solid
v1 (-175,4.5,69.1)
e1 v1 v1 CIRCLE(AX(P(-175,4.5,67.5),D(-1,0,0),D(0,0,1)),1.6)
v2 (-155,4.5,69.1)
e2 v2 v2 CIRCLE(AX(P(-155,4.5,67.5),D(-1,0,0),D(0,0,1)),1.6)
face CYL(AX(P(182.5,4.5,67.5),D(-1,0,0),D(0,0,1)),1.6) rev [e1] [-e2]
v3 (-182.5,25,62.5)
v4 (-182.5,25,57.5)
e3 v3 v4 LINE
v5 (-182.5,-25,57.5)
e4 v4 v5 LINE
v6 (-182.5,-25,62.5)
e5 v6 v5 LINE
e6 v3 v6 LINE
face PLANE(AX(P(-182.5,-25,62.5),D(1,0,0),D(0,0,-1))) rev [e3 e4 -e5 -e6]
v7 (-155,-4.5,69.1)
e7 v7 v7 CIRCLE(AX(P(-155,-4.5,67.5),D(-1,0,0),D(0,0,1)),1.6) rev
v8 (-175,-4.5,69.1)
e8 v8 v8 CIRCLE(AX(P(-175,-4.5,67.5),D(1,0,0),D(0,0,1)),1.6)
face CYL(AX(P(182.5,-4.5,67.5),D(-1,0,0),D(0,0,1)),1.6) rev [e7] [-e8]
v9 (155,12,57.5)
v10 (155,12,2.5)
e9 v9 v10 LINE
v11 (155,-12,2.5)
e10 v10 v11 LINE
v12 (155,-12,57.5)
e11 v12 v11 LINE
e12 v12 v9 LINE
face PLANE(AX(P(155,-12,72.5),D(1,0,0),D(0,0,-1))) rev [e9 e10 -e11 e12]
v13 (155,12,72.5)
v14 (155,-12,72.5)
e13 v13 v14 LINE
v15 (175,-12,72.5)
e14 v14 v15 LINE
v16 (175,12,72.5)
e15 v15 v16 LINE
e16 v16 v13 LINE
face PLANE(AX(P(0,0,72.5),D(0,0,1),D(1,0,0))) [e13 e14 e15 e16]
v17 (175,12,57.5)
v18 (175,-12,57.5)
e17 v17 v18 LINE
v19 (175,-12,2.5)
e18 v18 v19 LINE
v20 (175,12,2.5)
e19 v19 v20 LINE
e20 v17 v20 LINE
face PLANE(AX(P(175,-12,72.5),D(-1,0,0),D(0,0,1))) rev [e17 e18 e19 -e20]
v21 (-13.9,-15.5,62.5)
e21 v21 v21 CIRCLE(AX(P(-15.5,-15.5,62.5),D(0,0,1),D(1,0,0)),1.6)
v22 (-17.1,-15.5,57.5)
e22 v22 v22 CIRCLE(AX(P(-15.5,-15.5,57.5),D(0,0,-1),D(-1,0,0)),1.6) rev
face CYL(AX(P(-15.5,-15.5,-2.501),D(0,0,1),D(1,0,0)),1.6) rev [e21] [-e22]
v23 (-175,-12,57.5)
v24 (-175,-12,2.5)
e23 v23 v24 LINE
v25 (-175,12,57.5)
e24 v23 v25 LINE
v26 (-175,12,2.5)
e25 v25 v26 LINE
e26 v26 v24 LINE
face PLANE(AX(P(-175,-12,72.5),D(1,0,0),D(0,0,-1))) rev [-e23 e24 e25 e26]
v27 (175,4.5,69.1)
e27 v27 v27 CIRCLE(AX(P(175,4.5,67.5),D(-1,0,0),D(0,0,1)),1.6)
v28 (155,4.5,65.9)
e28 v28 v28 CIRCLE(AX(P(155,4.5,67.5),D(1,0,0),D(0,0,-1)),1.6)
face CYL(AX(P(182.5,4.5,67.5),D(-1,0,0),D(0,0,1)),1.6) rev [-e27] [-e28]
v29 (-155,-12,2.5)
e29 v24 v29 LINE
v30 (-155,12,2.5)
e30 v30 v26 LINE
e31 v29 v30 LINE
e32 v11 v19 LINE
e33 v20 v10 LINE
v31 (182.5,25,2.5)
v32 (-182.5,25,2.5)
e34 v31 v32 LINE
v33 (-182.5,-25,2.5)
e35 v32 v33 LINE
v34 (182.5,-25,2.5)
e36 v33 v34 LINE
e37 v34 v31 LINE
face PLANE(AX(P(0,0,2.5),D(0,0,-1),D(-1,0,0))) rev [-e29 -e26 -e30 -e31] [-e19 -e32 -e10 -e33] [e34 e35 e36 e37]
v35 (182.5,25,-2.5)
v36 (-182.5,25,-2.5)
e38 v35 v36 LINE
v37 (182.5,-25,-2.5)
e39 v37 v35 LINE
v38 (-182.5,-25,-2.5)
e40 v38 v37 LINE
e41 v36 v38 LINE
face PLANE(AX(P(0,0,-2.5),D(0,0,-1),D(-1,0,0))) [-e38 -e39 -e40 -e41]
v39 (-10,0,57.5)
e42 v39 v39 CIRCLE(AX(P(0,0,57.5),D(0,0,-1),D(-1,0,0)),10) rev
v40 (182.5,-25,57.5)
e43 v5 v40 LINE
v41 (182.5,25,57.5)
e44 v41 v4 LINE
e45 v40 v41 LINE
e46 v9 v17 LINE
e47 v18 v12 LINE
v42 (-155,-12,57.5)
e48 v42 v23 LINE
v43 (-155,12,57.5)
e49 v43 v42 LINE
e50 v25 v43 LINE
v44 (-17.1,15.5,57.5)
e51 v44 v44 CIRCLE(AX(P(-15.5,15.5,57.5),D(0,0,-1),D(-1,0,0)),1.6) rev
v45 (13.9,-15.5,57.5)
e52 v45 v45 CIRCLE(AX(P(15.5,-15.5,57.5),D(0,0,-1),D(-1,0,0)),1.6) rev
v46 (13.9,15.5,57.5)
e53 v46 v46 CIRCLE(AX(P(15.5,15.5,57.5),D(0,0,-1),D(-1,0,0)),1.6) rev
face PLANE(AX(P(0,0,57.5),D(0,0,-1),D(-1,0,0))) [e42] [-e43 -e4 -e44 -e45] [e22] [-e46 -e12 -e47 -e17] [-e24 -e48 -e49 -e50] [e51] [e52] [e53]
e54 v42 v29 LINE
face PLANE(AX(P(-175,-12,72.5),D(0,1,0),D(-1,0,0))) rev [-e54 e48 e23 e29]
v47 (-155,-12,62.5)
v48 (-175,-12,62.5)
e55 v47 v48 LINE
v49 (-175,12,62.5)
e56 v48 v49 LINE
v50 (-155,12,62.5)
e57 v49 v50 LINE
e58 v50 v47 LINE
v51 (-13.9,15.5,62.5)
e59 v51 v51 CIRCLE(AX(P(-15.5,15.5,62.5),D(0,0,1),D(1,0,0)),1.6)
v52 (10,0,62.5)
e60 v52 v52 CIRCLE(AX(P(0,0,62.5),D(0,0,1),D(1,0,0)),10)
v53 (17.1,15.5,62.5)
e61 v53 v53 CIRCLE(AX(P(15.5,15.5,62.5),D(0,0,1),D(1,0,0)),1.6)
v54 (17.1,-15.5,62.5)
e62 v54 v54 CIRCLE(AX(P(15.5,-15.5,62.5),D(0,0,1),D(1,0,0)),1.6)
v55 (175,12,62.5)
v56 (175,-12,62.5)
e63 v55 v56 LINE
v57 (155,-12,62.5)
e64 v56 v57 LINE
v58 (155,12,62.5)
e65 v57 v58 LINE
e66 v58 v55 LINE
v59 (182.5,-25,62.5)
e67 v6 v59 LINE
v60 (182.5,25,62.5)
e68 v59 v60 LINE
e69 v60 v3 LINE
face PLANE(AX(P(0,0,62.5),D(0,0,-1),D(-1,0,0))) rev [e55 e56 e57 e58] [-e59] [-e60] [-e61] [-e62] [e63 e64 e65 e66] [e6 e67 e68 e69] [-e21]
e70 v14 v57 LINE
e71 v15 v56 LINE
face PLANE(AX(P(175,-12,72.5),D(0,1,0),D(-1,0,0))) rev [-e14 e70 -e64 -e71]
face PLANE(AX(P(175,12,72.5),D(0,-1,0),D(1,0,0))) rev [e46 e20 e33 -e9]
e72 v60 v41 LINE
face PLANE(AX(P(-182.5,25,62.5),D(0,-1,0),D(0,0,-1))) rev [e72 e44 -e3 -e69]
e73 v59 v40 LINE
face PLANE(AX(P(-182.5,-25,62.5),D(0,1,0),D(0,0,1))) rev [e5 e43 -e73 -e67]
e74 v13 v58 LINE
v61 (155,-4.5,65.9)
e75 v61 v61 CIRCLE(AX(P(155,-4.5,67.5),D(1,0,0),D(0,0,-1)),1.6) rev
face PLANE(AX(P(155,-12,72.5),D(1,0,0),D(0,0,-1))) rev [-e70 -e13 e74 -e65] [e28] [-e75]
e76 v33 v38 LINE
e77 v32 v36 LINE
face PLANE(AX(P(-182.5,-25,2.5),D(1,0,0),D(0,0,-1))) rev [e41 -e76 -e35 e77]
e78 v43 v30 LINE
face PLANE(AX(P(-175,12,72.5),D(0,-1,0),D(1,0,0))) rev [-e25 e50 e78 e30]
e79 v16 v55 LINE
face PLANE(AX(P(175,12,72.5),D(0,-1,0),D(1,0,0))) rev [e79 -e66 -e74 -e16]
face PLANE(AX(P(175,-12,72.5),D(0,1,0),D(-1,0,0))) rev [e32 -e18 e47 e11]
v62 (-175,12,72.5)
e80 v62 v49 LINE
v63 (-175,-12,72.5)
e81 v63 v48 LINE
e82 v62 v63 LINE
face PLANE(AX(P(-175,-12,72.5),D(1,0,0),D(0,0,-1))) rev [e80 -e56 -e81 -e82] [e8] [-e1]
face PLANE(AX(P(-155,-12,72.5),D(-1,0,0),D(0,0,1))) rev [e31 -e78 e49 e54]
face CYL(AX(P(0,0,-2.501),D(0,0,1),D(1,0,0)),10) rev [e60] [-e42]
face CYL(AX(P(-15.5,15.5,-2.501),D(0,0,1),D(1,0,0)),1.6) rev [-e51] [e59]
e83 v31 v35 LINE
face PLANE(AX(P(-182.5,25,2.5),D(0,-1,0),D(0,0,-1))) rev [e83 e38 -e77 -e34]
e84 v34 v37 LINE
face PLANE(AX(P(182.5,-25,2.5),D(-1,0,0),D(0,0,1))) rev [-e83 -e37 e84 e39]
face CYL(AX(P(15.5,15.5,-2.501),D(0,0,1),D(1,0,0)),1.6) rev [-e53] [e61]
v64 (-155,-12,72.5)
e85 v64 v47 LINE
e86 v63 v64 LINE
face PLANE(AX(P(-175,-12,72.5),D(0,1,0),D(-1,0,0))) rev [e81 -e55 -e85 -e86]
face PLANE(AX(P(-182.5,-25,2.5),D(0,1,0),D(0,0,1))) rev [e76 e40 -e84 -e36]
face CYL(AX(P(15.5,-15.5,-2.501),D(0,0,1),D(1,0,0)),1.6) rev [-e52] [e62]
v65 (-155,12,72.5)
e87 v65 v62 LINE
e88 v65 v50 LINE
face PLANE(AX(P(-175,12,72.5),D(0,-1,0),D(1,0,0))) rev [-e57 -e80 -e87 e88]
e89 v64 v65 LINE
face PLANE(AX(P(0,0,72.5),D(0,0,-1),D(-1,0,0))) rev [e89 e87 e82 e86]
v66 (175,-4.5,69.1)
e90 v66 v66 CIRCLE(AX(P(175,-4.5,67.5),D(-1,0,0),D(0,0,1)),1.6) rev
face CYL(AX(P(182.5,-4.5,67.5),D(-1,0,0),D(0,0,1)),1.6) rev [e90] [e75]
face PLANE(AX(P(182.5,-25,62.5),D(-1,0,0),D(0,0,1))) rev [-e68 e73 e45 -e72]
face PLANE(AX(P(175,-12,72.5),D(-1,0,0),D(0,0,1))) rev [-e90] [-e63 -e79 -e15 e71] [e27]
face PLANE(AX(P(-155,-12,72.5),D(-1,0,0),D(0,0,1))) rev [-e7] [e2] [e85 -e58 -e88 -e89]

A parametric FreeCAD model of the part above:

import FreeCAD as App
import Part
import Sketcher
from FreeCAD import Vector

doc = App.newDocument("Part")
body = doc.addObject("PartDesign::Body", "Body")

sketch1 = body.newObject("Sketcher::SketchObject", "Sketch")
sketch1.AttachmentSupport = (doc.getObject("XY_Plane"), [""])
sketch1.MapMode = "FlatFace"
sketch1.addGeometry([
    Part.LineSegment(Vector(-182.5, 25, 0), Vector(-182.5, -25, 0)),
    Part.LineSegment(Vector(-182.5, -25, 0), Vector(182.5, -25, 0)),
    Part.LineSegment(Vector(182.5, -25, 0), Vector(182.5, 25, 0)),
    Part.LineSegment(Vector(182.5, 25, 0), Vector(-182.5, 25, 0)),
], False)
sketch1.addConstraint([
    Sketcher.Constraint("Coincident", 0, 2, 1, 1),
    Sketcher.Constraint("Coincident", 1, 2, 2, 1),
    Sketcher.Constraint("Coincident", 2, 2, 3, 1),
    Sketcher.Constraint("Coincident", 3, 2, 0, 1),
    Sketcher.Constraint("Vertical", 0),
    Sketcher.Constraint("Horizontal", 1),
    Sketcher.Constraint("Vertical", 2),
    Sketcher.Constraint("Horizontal", 3),
    Sketcher.Constraint("Symmetric", 0, 2, 2, 2, -1, 1),
    Sketcher.Constraint("DistanceX", 1, 1, 1, 2, 365.0),
    Sketcher.Constraint("DistanceY", 0, 2, 0, 1, 50.0),
])
pad1 = body.newObject("PartDesign::Pad", "Pad")
pad1.Profile = sketch1
pad1.Length = 5
pad1.Midplane = True

sketch2 = body.newObject("Sketcher::SketchObject", "Sketch001")
sketch2.AttachmentSupport = (doc.getObject("XY_Plane"), [""])
sketch2.MapMode = "FlatFace"
sketch2.AttachmentOffset = App.Placement(Vector(0, 0, 2.5), App.Rotation())
sketch2.addGeometry([
    Part.LineSegment(Vector(155, 12, 0), Vector(155, -12, 0)),
    Part.LineSegment(Vector(155, -12, 0), Vector(175, -12, 0)),
    Part.LineSegment(Vector(175, -12, 0), Vector(175, 12, 0)),
    Part.LineSegment(Vector(175, 12, 0), Vector(155, 12, 0)),
    Part.LineSegment(Vector(-175, 12, 0), Vector(-175, -12, 0)),
    Part.LineSegment(Vector(-175, -12, 0), Vector(-155, -12, 0)),
    Part.LineSegment(Vector(-155, -12, 0), Vector(-155, 12, 0)),
    Part.LineSegment(Vector(-155, 12, 0), Vector(-175, 12, 0)),
], False)
sketch2.addConstraint([
    Sketcher.Constraint("Coincident", 0, 2, 1, 1),
    Sketcher.Constraint("Coincident", 1, 2, 2, 1),
    Sketcher.Constraint("Coincident", 2, 2, 3, 1),
    Sketcher.Constraint("Coincident", 3, 2, 0, 1),
    Sketcher.Constraint("Coincident", 4, 2, 5, 1),
    Sketcher.Constraint("Coincident", 5, 2, 6, 1),
    Sketcher.Constraint("Coincident", 6, 2, 7, 1),
    Sketcher.Constraint("Coincident", 7, 2, 4, 1),
    Sketcher.Constraint("Vertical", 0),
    Sketcher.Constraint("Horizontal", 1),
    Sketcher.Constraint("Vertical", 2),
    Sketcher.Constraint("Horizontal", 3),
    Sketcher.Constraint("Vertical", 4),
    Sketcher.Constraint("Horizontal", 5),
    Sketcher.Constraint("Vertical", 6),
    Sketcher.Constraint("Horizontal", 7),
    Sketcher.Constraint("Symmetric", 2, 2, 4, 2, -1, 1),
    Sketcher.Constraint("Symmetric", 0, 2, 6, 2, -1, 1),
    Sketcher.Constraint("Horizontal", 1, 2, 4, 2),
    Sketcher.Constraint("DistanceX", 1, 1, 1, 2, 20.0),
    Sketcher.Constraint("DistanceY", 0, 2, 0, 1, 24.0),
    Sketcher.Constraint("DistanceX", -1, 1, 0, 2, 155.0),
])
pad2 = body.newObject("PartDesign::Pad", "Pad001")
pad2.Profile = sketch2
pad2.Length = 70
doc.recompute()

linearpattern = body.newObject("PartDesign::LinearPattern", "LinearPattern")
linearpattern.Originals = [pad1]
linearpattern.Direction = (doc.getObject("Z_Axis"), [""])
linearpattern.Mode = "offset"
linearpattern.Offset = 60
linearpattern.Occurrences = 2
body.Tip = linearpattern

sketch3 = body.newObject("Sketcher::SketchObject", "Sketch002")
sketch3.AttachmentSupport = (doc.getObject("YZ_Plane"), [""])
sketch3.MapMode = "FlatFace"
sketch3.AttachmentOffset = App.Placement(Vector(0, 0, -175), App.Rotation())
sketch3.addGeometry(Part.Circle(Vector(4.5, 67.5, 0), Vector(0, 0, 1), 1.6), False)
sketch3.addConstraint([
    Sketcher.Constraint("Diameter", 0, 3.2),
    Sketcher.Constraint("DistanceX", -1, 1, 0, 3, 4.5),
    Sketcher.Constraint("DistanceY", -1, 1, 0, 3, 67.5),
])
pocket1 = body.newObject("PartDesign::Pocket", "Pocket")
pocket1.Profile = sketch3
pocket1.Type = "ThroughAll"
pocket1.Reversed = True

sketch4 = body.newObject("Sketcher::SketchObject", "Sketch003")
sketch4.AttachmentSupport = (doc.getObject("XY_Plane"), [""])
sketch4.MapMode = "FlatFace"
sketch4.AttachmentOffset = App.Placement(Vector(0, 0, 62.5), App.Rotation())
sketch4.addGeometry(Part.Circle(Vector(-15.5, 15.5, 0), Vector(0, 0, 1), 1.6), False)
sketch4.addConstraint([
    Sketcher.Constraint("Diameter", 0, 3.2),
    Sketcher.Constraint("DistanceX", 0, 3, -1, 1, 15.5),
    Sketcher.Constraint("DistanceY", -1, 1, 0, 3, 15.5),
])
pocket2 = body.newObject("PartDesign::Pocket", "Pocket001")
pocket2.Profile = sketch4
pocket2.Type = "UpToFirst"

sketch5 = body.newObject("Sketcher::SketchObject", "Sketch004")
sketch5.AttachmentSupport = (doc.getObject("XY_Plane"), [""])
sketch5.MapMode = "FlatFace"
sketch5.AttachmentOffset = App.Placement(Vector(0, 0, 62.5), App.Rotation())
sketch5.addGeometry(Part.Circle(Vector(15.5, 15.5, 0), Vector(0, 0, 1), 1.6), False)
sketch5.addConstraint([
    Sketcher.Constraint("Diameter", 0, 3.2),
    Sketcher.Constraint("DistanceX", -1, 1, 0, 3, 15.5),
    Sketcher.Constraint("DistanceY", -1, 1, 0, 3, 15.5),
])
pocket3 = body.newObject("PartDesign::Pocket", "Pocket002")
pocket3.Profile = sketch5
pocket3.Type = "UpToFirst"

sketch6 = body.newObject("Sketcher::SketchObject", "Sketch005")
sketch6.AttachmentSupport = (doc.getObject("XY_Plane"), [""])
sketch6.MapMode = "FlatFace"
sketch6.AttachmentOffset = App.Placement(Vector(0, 0, 62.5), App.Rotation())
sketch6.addGeometry(Part.Circle(Vector(15.5, -15.5, 0), Vector(0, 0, 1), 1.6), False)
sketch6.addConstraint([
    Sketcher.Constraint("Diameter", 0, 3.2),
    Sketcher.Constraint("DistanceX", -1, 1, 0, 3, 15.5),
    Sketcher.Constraint("DistanceY", 0, 3, -1, 1, 15.5),
])
pocket4 = body.newObject("PartDesign::Pocket", "Pocket003")
pocket4.Profile = sketch6
pocket4.Type = "UpToFirst"

sketch7 = body.newObject("Sketcher::SketchObject", "Sketch006")
sketch7.AttachmentSupport = (doc.getObject("XY_Plane"), [""])
sketch7.MapMode = "FlatFace"
sketch7.AttachmentOffset = App.Placement(Vector(0, 0, 62.5), App.Rotation())
sketch7.addGeometry(Part.Circle(Vector(-15.5, -15.5, 0), Vector(0, 0, 1), 1.6), False)
sketch7.addConstraint([
    Sketcher.Constraint("Diameter", 0, 3.2),
    Sketcher.Constraint("DistanceX", 0, 3, -1, 1, 15.5),
    Sketcher.Constraint("DistanceY", 0, 3, -1, 1, 15.5),
])
pocket5 = body.newObject("PartDesign::Pocket", "Pocket004")
pocket5.Profile = sketch7
pocket5.Type = "UpToFirst"

sketch8 = body.newObject("Sketcher::SketchObject", "Sketch007")
sketch8.AttachmentSupport = (doc.getObject("XY_Plane"), [""])
sketch8.MapMode = "FlatFace"
sketch8.AttachmentOffset = App.Placement(Vector(0, 0, 62.5), App.Rotation())
sketch8.addGeometry(Part.Circle(Vector(0, 0, 0), Vector(0, 0, 1), 10), False)
sketch8.addConstraint([
    Sketcher.Constraint("Coincident", 0, 3, -1, 1),
    Sketcher.Constraint("Diameter", 0, 20.0),
])
pocket6 = body.newObject("PartDesign::Pocket", "Pocket005")
pocket6.Profile = sketch8
pocket6.Type = "UpToFirst"
doc.recompute()

mirrored = body.newObject("PartDesign::Mirrored", "Mirrored")
mirrored.Originals = [pocket1]
mirrored.MirrorPlane = (doc.getObject("XZ_Plane"), [""])
body.Tip = mirrored

doc.recompute()
